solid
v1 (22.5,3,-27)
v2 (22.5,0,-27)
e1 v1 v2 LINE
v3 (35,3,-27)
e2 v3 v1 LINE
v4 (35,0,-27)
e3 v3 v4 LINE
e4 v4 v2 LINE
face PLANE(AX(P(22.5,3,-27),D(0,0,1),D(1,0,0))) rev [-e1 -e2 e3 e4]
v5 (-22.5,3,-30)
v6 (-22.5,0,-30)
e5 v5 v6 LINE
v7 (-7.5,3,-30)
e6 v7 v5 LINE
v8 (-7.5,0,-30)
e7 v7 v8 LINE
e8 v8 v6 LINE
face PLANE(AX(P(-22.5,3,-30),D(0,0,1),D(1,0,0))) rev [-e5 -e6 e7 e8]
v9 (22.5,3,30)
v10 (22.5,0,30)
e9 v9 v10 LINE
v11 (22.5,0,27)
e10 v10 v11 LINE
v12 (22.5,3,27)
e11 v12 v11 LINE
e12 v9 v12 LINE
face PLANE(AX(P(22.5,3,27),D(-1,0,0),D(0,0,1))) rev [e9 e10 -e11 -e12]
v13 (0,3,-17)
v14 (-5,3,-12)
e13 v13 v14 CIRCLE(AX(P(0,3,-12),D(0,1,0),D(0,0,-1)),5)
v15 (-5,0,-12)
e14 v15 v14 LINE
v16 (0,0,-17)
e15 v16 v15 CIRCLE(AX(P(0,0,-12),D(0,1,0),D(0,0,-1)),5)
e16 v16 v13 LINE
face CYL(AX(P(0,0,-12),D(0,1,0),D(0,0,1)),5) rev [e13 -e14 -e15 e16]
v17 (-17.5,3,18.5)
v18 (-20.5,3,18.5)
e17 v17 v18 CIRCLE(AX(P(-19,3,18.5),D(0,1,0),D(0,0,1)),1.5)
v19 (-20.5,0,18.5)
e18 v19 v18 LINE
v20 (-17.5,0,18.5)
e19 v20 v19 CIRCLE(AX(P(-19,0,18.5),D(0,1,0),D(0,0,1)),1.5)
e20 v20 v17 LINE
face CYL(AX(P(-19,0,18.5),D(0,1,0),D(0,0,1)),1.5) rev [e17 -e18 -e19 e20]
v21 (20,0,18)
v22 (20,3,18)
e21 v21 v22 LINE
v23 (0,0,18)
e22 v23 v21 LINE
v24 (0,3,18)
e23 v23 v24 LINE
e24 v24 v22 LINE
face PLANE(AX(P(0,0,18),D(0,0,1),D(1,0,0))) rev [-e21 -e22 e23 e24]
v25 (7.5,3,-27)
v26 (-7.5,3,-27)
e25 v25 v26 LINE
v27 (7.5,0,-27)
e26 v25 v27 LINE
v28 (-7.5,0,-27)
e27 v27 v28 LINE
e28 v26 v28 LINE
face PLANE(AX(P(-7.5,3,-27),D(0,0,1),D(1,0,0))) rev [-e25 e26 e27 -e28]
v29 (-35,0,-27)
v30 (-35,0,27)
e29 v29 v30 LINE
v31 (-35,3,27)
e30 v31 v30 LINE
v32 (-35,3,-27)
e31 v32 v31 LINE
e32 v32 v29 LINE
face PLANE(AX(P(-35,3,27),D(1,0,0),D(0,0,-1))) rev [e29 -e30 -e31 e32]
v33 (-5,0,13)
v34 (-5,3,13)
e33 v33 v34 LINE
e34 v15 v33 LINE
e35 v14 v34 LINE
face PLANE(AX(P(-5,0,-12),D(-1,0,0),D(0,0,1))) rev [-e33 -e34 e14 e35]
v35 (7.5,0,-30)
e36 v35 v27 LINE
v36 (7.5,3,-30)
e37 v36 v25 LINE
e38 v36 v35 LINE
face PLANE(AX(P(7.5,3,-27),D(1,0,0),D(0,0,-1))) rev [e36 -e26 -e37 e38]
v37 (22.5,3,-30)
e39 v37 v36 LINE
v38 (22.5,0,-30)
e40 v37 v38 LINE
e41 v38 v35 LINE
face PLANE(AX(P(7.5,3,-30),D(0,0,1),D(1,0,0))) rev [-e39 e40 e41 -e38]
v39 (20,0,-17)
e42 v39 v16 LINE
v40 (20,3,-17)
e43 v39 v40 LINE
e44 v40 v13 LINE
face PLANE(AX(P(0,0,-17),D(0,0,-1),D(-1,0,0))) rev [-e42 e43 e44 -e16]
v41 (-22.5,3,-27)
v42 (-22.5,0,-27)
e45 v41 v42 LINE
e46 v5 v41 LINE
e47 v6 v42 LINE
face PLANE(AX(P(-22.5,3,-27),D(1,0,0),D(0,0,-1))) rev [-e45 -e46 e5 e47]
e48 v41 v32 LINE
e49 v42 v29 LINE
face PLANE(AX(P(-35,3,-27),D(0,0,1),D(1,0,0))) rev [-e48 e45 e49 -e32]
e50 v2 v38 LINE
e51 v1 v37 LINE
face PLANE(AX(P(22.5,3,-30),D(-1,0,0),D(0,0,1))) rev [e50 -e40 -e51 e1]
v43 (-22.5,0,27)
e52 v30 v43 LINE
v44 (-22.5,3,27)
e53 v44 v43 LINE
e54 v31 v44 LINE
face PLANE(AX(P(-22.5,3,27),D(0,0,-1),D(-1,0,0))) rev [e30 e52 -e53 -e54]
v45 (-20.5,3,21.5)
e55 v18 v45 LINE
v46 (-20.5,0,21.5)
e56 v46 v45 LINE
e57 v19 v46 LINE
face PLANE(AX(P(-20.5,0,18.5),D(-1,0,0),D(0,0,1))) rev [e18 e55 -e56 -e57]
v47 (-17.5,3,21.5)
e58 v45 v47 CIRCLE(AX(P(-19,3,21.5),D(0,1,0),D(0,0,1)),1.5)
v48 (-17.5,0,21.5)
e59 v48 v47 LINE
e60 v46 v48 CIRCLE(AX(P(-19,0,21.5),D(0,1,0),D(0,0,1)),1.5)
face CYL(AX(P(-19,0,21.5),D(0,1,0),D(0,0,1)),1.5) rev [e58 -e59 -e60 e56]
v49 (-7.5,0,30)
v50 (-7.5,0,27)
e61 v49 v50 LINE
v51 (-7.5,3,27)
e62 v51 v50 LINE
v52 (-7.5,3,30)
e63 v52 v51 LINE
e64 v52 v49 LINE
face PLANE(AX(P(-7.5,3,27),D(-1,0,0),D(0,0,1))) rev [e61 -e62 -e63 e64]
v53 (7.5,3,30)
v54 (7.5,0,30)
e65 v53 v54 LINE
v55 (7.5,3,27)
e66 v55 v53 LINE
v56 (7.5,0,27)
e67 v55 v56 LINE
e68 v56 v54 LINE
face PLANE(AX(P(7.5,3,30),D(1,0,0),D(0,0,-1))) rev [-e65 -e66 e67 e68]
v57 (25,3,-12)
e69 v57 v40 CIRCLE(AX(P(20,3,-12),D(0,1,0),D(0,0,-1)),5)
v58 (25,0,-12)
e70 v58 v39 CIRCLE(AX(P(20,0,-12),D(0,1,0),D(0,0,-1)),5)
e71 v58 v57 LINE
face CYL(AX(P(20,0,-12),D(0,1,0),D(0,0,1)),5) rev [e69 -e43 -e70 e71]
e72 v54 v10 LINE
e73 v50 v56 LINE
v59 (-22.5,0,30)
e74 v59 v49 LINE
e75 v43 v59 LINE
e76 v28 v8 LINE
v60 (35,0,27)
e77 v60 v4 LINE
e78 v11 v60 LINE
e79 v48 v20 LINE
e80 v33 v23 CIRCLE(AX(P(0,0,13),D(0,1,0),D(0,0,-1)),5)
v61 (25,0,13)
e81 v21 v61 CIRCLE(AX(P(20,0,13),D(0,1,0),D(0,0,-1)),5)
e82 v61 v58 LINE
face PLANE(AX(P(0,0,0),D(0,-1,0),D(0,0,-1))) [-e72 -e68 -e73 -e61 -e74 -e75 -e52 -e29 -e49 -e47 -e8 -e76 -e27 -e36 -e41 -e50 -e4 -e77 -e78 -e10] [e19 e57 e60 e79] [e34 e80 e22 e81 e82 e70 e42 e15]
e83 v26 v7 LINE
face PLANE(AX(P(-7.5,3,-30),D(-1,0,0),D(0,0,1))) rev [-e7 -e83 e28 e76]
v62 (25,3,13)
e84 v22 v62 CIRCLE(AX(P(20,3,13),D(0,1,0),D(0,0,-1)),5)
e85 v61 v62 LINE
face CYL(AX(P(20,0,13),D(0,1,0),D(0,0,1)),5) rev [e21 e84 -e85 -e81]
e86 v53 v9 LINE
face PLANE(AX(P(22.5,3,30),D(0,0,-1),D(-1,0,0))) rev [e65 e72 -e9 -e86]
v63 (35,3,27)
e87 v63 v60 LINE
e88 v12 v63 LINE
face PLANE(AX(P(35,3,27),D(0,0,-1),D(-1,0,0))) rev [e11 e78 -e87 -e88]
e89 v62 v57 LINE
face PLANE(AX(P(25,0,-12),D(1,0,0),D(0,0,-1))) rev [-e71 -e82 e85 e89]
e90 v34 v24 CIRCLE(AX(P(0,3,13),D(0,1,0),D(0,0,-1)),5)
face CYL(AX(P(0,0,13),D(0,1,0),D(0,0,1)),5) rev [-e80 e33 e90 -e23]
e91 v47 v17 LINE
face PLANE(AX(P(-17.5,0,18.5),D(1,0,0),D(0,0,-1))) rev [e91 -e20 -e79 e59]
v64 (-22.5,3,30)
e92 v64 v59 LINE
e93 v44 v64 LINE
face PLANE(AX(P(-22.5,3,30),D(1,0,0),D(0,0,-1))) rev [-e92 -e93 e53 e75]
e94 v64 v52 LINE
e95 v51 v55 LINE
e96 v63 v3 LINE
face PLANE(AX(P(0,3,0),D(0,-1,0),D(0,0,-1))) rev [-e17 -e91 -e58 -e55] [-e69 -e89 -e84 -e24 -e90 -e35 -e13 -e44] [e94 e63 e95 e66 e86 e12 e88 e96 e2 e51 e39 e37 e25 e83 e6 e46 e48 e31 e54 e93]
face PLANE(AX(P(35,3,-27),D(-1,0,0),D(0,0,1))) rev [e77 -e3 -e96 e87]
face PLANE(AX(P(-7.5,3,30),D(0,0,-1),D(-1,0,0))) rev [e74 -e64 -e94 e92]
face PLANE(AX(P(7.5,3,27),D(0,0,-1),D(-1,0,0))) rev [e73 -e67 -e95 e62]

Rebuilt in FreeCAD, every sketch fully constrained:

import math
import FreeCAD as App
import Part
import Sketcher

V = App.Vector


def add_polygon(sketch, points):
    """Adds a closed chain of lines whose ends are joined by coincident constraints."""
    first, n = sketch.GeometryCount, len(points)
    for a, b in zip(points, points[1:] + points[:1]):
        sketch.addGeometry(Part.LineSegment(App.Vector(*a, 0), App.Vector(*b, 0)), False)
    for i in range(n):
        sketch.addConstraint(Sketcher.Constraint("Coincident", first + i, 2, first + (i + 1) % n, 1))

doc = App.newDocument("Part")
body = doc.addObject("PartDesign::Body", "Body")

# Sketch on XZ plane
sketch1 = doc.addObject("Sketcher::SketchObject", "Sketch")
body.addObject(sketch1)
sketch1.AttachmentSupport = (doc.XZ_Plane, [""])
sketch1.MapMode = "FlatFace"
add_polygon(sketch1, [(-22.5, -27), (-35, -27), (-35, 27), (-22.5, 27), (-22.5, 30), (-7.5, 30), (-7.5, 27), (7.5, 27), (7.5, 30), (22.5, 30), (22.5, 27), (35, 27), (35, -27), (22.5, -27), (22.5, -30), (7.5, -30), (7.5, -27), (-7.5, -27), (-7.5, -30), (-22.5, -30)])  # lines 0-19
sketch1.addConstraint(Sketcher.Constraint("Horizontal", 0))
sketch1.addConstraint(Sketcher.Constraint("Vertical", 1))
sketch1.addConstraint(Sketcher.Constraint("Horizontal", 2))
sketch1.addConstraint(Sketcher.Constraint("Vertical", 3))
sketch1.addConstraint(Sketcher.Constraint("Horizontal", 4))
sketch1.addConstraint(Sketcher.Constraint("Vertical", 5))
sketch1.addConstraint(Sketcher.Constraint("Horizontal", 6))
sketch1.addConstraint(Sketcher.Constraint("Vertical", 7))
sketch1.addConstraint(Sketcher.Constraint("Horizontal", 8))
sketch1.addConstraint(Sketcher.Constraint("Vertical", 9))
sketch1.addConstraint(Sketcher.Constraint("Horizontal", 10))
sketch1.addConstraint(Sketcher.Constraint("Vertical", 11))
sketch1.addConstraint(Sketcher.Constraint("Horizontal", 12))
sketch1.addConstraint(Sketcher.Constraint("Vertical", 13))
sketch1.addConstraint(Sketcher.Constraint("Horizontal", 14))
sketch1.addConstraint(Sketcher.Constraint("Vertical", 15))
sketch1.addConstraint(Sketcher.Constraint("Horizontal", 16))
sketch1.addConstraint(Sketcher.Constraint("Vertical", 17))
sketch1.addConstraint(Sketcher.Constraint("Horizontal", 18))
sketch1.addConstraint(Sketcher.Constraint("Vertical", 19))
sketch1.addConstraint(Sketcher.Constraint("Symmetric", 0, 2, 10, 2, -1, 1))
sketch1.addConstraint(Sketcher.Constraint("Symmetric", 2, 2, 12, 2, -1, 1))
sketch1.addConstraint(Sketcher.Constraint("Symmetric", 4, 2, 14, 2, -1, 1))
sketch1.addConstraint(Sketcher.Constraint("Symmetric", 6, 2, 16, 2, -1, 1))
sketch1.addConstraint(Sketcher.Constraint("Symmetric", 8, 2, 18, 2, -1, 1))
sketch1.addConstraint(Sketcher.Constraint("Symmetric", 4, 2, 7, 2, -2))
sketch1.addConstraint(Sketcher.Constraint("Symmetric", 2, 2, 9, 2, -2))
sketch1.addConstraint(Sketcher.Constraint("Horizontal", 2, 2, 5, 2))
sketch1.addConstraint(Sketcher.Constraint("Equal", 4, 6))
sketch1.addConstraint(Sketcher.Constraint("DistanceX", 4, 1, 4, 2, 15.0))
sketch1.addConstraint(Sketcher.Constraint("DistanceY", 1, 1, 1, 2, 54.0))
sketch1.addConstraint(Sketcher.Constraint("DistanceY", 3, 1, 3, 2, 3.0))
sketch1.addConstraint(Sketcher.Constraint("DistanceX", 0, 2, 0, 1, 12.5))
pad1 = doc.addObject("PartDesign::Pad", "Pad")
body.addObject(pad1)
pad1.Profile = sketch1
pad1.Length = 3
pad1.Reversed = True

# Sketch on XZ plane
sketch2 = doc.addObject("Sketcher::SketchObject", "Sketch001")
body.addObject(sketch2)
sketch2.AttachmentSupport = (doc.XZ_Plane, [""])
sketch2.MapMode = "FlatFace"
sketch2.AttachmentOffset = App.Placement(V(0, 0, -3), App.Rotation())
sketch2.addGeometry(Part.LineSegment(V(20, -17, 0), V(0, -17, 0)), False)
sketch2.addGeometry(Part.ArcOfCircle(Part.Circle(V(0, -12, 0), V(0, 0, 1), 5), math.radians(180), math.radians(270)), False)
sketch2.addGeometry(Part.LineSegment(V(-5, -12, 0), V(-5, 13, 0)), False)
sketch2.addGeometry(Part.ArcOfCircle(Part.Circle(V(0, 13, 0), V(0, 0, 1), 5), math.radians(90), math.radians(180)), False)
sketch2.addGeometry(Part.LineSegment(V(0, 18, 0), V(20, 18, 0)), False)
sketch2.addGeometry(Part.ArcOfCircle(Part.Circle(V(20, 13, 0), V(0, 0, 1), 5), math.radians(0), math.radians(90)), False)
sketch2.addGeometry(Part.LineSegment(V(25, 13, 0), V(25, -12, 0)), False)
sketch2.addGeometry(Part.ArcOfCircle(Part.Circle(V(20, -12, 0), V(0, 0, 1), 5), math.radians(-90), math.radians(0)), False)
sketch2.addConstraint(Sketcher.Constraint("Tangent", 0, 2, 1, 2))
sketch2.addConstraint(Sketcher.Constraint("Tangent", 1, 1, 2, 1))
sketch2.addConstraint(Sketcher.Constraint("Tangent", 2, 2, 3, 2))
sketch2.addConstraint(Sketcher.Constraint("Tangent", 3, 1, 4, 1))
sketch2.addConstraint(Sketcher.Constraint("Tangent", 4, 2, 5, 2))
sketch2.addConstraint(Sketcher.Constraint("Tangent", 5, 1, 6, 1))
sketch2.addConstraint(Sketcher.Constraint("Tangent", 6, 2, 7, 2))
sketch2.addConstraint(Sketcher.Constraint("Tangent", 7, 1, 0, 1))
sketch2.addConstraint(Sketcher.Constraint("Horizontal", 0))
sketch2.addConstraint(Sketcher.Constraint("Vertical", 2))
sketch2.addConstraint(Sketcher.Constraint("Horizontal", 4))
sketch2.addConstraint(Sketcher.Constraint("Vertical", 6))
sketch2.addConstraint(Sketcher.Constraint("Equal", 1, 3))
sketch2.addConstraint(Sketcher.Constraint("Equal", 3, 5))
sketch2.addConstraint(Sketcher.Constraint("Equal", 5, 7))
sketch2.addConstraint(Sketcher.Constraint("PointOnObject", 1, 3, -2))
sketch2.addConstraint(Sketcher.Constraint("Radius", 1, 5.0))
sketch2.addConstraint(Sketcher.Constraint("DistanceX", 0, 2, 0, 1, 20.0))
sketch2.addConstraint(Sketcher.Constraint("DistanceY", 2, 1, 2, 2, 25.0))
sketch2.addConstraint(Sketcher.Constraint("DistanceY", 1, 3, -1, 1, 12.0))
pocket1 = doc.addObject("PartDesign::Pocket", "Pocket")
body.addObject(pocket1)
pocket1.Profile = sketch2
pocket1.Type = "ThroughAll"
pocket1.Reversed = True

# Sketch on XZ plane
sketch3 = doc.addObject("Sketcher::SketchObject", "Sketch002")
body.addObject(sketch3)
sketch3.AttachmentSupport = (doc.XZ_Plane, [""])
sketch3.MapMode = "FlatFace"
sketch3.AttachmentOffset = App.Placement(V(0, 0, -3), App.Rotation())
sketch3.addGeometry(Part.LineSegment(V(-17.5, 21.5, 0), V(-17.5, 18.5, 0)), False)
sketch3.addGeometry(Part.ArcOfCircle(Part.Circle(V(-19, 18.5, 0), V(0, 0, 1), 1.5), math.radians(180), math.radians(360)), False)
sketch3.addGeometry(Part.LineSegment(V(-20.5, 18.5, 0), V(-20.5, 21.5, 0)), False)
sketch3.addGeometry(Part.ArcOfCircle(Part.Circle(V(-19, 21.5, 0), V(0, 0, 1), 1.5), math.radians(0), math.radians(180)), False)
sketch3.addConstraint(Sketcher.Constraint("Tangent", 0, 2, 1, 2))
sketch3.addConstraint(Sketcher.Constraint("Tangent", 1, 1, 2, 1))
sketch3.addConstraint(Sketcher.Constraint("Tangent", 2, 2, 3, 2))
sketch3.addConstraint(Sketcher.Constraint("Tangent", 3, 1, 0, 1))
sketch3.addConstraint(Sketcher.Constraint("Vertical", 0))
sketch3.addConstraint(Sketcher.Constraint("Vertical", 2))
sketch3.addConstraint(Sketcher.Constraint("Radius", 1, 1.5))
sketch3.addConstraint(Sketcher.Constraint("DistanceY", 0, 2, 0, 1, 3.0))
sketch3.addConstraint(Sketcher.Constraint("DistanceX", 1, 3, -1, 1, 19.0))
sketch3.addConstraint(Sketcher.Constraint("DistanceY", -1, 1, 1, 3, 18.5))
pocket2 = doc.addObject("PartDesign::Pocket", "Pocket001")
body.addObject(pocket2)
pocket2.Profile = sketch3
pocket2.Type = "ThroughAll"
pocket2.Reversed = True

doc.recompute()
